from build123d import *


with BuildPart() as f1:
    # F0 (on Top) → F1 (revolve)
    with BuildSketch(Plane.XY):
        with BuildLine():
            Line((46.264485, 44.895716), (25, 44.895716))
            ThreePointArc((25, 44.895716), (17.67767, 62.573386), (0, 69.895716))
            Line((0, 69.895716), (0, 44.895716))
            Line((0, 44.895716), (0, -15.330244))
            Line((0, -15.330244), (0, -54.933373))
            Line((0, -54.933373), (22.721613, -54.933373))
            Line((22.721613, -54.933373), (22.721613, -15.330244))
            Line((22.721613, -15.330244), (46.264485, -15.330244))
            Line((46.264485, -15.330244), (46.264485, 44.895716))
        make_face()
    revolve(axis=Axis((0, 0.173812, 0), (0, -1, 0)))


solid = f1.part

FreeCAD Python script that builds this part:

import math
import FreeCAD as App
import Part
import Sketcher

V = App.Vector
Q = App.Units.Quantity

doc = App.newDocument("Part")
params = doc.addObject("Spreadsheet::Sheet", "Params")
for row, (alias, value) in enumerate([
    ("sketch1_radius", "24.999998 mm"),
    ("revolution_angle", "360 deg"),
], start=1):
    params.set(f"A{row}", alias)
    params.set(f"B{row}", "=" + value)
    params.setAlias(f"B{row}", alias)

body = doc.addObject("PartDesign::Body", "Body")

sketch1 = body.newObject("Sketcher::SketchObject", "Sketch")
sketch1.AttachmentSupport = (doc.getObject("XY_Plane"), [""])
sketch1.MapMode = "FlatFace"
sketch1.addGeometry(Part.LineSegment(V(46, 45, 0), V(25, 45, 0)), False)
sketch1.addGeometry(Part.ArcOfCircle(Part.Circle(V(0, 45, 0), V(0, 0, 1), 25), math.radians(0), math.radians(90)), False)
sketch1.addGeometry(Part.LineSegment(V(0, 70, 0), V(0, -55, 0)), False)
sketch1.addGeometry(Part.LineSegment(V(0, -55, 0), V(23, -55, 0)), False)
sketch1.addGeometry(Part.LineSegment(V(23, -55, 0), V(23, -15, 0)), False)
sketch1.addGeometry(Part.LineSegment(V(23, -15, 0), V(46, -15, 0)), False)
sketch1.addGeometry(Part.LineSegment(V(46, -15, 0), V(46, 45, 0)), False)
sketch1.addConstraint(Sketcher.Constraint("Coincident", 0, 2, 1, 1))
sketch1.addConstraint(Sketcher.Constraint("Coincident", 1, 2, 2, 1))
sketch1.addConstraint(Sketcher.Constraint("Coincident", 2, 2, 3, 1))
sketch1.addConstraint(Sketcher.Constraint("Coincident", 3, 2, 4, 1))
sketch1.addConstraint(Sketcher.Constraint("Coincident", 4, 2, 5, 1))
sketch1.addConstraint(Sketcher.Constraint("Coincident", 5, 2, 6, 1))
sketch1.addConstraint(Sketcher.Constraint("Coincident", 6, 2, 0, 1))
sketch1.addConstraint(Sketcher.Constraint("Horizontal", 0))
sketch1.addConstraint(Sketcher.Constraint("Vertical", 2))
sketch1.addConstraint(Sketcher.Constraint("Horizontal", 3))
sketch1.addConstraint(Sketcher.Constraint("Vertical", 4))
sketch1.addConstraint(Sketcher.Constraint("Horizontal", 5))
sketch1.addConstraint(Sketcher.Constraint("Vertical", 6))
sketch1.addConstraint(Sketcher.Constraint("PointOnObject", 1, 3, -2))
sketch1.addConstraint(Sketcher.Constraint("PointOnObject", 1, 2, -2))
sketch1.addConstraint(Sketcher.Constraint("Horizontal", 1, 3, 0, 2))
sketch1.addConstraint(Sketcher.Constraint("Radius", 1, Q("24.999998 mm")))
sketch1.addConstraint(Sketcher.Constraint("DistanceX", 5, 1, 5, 2, Q("23.542872 mm")))
sketch1.addConstraint(Sketcher.Constraint("DistanceY", 2, 2, 2, 1, Q("124.829089 mm")))
sketch1.addConstraint(Sketcher.Constraint("DistanceY", 4, 1, 4, 2, Q("39.603129 mm")))
sketch1.addConstraint(Sketcher.Constraint("DistanceX", 0, 2, 0, 1, Q("21.264485 mm")))
sketch1.addConstraint(Sketcher.Constraint("DistanceY", -1, 1, 1, 3, Q("44.895718 mm")))
sketch1.setExpression("Constraints[16]", "Params.sketch1_radius")
revolution = body.newObject("PartDesign::Revolution", "Revolution")
revolution.Profile = sketch1
revolution.ReferenceAxis = (sketch1, ["V_Axis"])
revolution.setExpression("Angle", "Params.revolution_angle")

doc.recompute()
